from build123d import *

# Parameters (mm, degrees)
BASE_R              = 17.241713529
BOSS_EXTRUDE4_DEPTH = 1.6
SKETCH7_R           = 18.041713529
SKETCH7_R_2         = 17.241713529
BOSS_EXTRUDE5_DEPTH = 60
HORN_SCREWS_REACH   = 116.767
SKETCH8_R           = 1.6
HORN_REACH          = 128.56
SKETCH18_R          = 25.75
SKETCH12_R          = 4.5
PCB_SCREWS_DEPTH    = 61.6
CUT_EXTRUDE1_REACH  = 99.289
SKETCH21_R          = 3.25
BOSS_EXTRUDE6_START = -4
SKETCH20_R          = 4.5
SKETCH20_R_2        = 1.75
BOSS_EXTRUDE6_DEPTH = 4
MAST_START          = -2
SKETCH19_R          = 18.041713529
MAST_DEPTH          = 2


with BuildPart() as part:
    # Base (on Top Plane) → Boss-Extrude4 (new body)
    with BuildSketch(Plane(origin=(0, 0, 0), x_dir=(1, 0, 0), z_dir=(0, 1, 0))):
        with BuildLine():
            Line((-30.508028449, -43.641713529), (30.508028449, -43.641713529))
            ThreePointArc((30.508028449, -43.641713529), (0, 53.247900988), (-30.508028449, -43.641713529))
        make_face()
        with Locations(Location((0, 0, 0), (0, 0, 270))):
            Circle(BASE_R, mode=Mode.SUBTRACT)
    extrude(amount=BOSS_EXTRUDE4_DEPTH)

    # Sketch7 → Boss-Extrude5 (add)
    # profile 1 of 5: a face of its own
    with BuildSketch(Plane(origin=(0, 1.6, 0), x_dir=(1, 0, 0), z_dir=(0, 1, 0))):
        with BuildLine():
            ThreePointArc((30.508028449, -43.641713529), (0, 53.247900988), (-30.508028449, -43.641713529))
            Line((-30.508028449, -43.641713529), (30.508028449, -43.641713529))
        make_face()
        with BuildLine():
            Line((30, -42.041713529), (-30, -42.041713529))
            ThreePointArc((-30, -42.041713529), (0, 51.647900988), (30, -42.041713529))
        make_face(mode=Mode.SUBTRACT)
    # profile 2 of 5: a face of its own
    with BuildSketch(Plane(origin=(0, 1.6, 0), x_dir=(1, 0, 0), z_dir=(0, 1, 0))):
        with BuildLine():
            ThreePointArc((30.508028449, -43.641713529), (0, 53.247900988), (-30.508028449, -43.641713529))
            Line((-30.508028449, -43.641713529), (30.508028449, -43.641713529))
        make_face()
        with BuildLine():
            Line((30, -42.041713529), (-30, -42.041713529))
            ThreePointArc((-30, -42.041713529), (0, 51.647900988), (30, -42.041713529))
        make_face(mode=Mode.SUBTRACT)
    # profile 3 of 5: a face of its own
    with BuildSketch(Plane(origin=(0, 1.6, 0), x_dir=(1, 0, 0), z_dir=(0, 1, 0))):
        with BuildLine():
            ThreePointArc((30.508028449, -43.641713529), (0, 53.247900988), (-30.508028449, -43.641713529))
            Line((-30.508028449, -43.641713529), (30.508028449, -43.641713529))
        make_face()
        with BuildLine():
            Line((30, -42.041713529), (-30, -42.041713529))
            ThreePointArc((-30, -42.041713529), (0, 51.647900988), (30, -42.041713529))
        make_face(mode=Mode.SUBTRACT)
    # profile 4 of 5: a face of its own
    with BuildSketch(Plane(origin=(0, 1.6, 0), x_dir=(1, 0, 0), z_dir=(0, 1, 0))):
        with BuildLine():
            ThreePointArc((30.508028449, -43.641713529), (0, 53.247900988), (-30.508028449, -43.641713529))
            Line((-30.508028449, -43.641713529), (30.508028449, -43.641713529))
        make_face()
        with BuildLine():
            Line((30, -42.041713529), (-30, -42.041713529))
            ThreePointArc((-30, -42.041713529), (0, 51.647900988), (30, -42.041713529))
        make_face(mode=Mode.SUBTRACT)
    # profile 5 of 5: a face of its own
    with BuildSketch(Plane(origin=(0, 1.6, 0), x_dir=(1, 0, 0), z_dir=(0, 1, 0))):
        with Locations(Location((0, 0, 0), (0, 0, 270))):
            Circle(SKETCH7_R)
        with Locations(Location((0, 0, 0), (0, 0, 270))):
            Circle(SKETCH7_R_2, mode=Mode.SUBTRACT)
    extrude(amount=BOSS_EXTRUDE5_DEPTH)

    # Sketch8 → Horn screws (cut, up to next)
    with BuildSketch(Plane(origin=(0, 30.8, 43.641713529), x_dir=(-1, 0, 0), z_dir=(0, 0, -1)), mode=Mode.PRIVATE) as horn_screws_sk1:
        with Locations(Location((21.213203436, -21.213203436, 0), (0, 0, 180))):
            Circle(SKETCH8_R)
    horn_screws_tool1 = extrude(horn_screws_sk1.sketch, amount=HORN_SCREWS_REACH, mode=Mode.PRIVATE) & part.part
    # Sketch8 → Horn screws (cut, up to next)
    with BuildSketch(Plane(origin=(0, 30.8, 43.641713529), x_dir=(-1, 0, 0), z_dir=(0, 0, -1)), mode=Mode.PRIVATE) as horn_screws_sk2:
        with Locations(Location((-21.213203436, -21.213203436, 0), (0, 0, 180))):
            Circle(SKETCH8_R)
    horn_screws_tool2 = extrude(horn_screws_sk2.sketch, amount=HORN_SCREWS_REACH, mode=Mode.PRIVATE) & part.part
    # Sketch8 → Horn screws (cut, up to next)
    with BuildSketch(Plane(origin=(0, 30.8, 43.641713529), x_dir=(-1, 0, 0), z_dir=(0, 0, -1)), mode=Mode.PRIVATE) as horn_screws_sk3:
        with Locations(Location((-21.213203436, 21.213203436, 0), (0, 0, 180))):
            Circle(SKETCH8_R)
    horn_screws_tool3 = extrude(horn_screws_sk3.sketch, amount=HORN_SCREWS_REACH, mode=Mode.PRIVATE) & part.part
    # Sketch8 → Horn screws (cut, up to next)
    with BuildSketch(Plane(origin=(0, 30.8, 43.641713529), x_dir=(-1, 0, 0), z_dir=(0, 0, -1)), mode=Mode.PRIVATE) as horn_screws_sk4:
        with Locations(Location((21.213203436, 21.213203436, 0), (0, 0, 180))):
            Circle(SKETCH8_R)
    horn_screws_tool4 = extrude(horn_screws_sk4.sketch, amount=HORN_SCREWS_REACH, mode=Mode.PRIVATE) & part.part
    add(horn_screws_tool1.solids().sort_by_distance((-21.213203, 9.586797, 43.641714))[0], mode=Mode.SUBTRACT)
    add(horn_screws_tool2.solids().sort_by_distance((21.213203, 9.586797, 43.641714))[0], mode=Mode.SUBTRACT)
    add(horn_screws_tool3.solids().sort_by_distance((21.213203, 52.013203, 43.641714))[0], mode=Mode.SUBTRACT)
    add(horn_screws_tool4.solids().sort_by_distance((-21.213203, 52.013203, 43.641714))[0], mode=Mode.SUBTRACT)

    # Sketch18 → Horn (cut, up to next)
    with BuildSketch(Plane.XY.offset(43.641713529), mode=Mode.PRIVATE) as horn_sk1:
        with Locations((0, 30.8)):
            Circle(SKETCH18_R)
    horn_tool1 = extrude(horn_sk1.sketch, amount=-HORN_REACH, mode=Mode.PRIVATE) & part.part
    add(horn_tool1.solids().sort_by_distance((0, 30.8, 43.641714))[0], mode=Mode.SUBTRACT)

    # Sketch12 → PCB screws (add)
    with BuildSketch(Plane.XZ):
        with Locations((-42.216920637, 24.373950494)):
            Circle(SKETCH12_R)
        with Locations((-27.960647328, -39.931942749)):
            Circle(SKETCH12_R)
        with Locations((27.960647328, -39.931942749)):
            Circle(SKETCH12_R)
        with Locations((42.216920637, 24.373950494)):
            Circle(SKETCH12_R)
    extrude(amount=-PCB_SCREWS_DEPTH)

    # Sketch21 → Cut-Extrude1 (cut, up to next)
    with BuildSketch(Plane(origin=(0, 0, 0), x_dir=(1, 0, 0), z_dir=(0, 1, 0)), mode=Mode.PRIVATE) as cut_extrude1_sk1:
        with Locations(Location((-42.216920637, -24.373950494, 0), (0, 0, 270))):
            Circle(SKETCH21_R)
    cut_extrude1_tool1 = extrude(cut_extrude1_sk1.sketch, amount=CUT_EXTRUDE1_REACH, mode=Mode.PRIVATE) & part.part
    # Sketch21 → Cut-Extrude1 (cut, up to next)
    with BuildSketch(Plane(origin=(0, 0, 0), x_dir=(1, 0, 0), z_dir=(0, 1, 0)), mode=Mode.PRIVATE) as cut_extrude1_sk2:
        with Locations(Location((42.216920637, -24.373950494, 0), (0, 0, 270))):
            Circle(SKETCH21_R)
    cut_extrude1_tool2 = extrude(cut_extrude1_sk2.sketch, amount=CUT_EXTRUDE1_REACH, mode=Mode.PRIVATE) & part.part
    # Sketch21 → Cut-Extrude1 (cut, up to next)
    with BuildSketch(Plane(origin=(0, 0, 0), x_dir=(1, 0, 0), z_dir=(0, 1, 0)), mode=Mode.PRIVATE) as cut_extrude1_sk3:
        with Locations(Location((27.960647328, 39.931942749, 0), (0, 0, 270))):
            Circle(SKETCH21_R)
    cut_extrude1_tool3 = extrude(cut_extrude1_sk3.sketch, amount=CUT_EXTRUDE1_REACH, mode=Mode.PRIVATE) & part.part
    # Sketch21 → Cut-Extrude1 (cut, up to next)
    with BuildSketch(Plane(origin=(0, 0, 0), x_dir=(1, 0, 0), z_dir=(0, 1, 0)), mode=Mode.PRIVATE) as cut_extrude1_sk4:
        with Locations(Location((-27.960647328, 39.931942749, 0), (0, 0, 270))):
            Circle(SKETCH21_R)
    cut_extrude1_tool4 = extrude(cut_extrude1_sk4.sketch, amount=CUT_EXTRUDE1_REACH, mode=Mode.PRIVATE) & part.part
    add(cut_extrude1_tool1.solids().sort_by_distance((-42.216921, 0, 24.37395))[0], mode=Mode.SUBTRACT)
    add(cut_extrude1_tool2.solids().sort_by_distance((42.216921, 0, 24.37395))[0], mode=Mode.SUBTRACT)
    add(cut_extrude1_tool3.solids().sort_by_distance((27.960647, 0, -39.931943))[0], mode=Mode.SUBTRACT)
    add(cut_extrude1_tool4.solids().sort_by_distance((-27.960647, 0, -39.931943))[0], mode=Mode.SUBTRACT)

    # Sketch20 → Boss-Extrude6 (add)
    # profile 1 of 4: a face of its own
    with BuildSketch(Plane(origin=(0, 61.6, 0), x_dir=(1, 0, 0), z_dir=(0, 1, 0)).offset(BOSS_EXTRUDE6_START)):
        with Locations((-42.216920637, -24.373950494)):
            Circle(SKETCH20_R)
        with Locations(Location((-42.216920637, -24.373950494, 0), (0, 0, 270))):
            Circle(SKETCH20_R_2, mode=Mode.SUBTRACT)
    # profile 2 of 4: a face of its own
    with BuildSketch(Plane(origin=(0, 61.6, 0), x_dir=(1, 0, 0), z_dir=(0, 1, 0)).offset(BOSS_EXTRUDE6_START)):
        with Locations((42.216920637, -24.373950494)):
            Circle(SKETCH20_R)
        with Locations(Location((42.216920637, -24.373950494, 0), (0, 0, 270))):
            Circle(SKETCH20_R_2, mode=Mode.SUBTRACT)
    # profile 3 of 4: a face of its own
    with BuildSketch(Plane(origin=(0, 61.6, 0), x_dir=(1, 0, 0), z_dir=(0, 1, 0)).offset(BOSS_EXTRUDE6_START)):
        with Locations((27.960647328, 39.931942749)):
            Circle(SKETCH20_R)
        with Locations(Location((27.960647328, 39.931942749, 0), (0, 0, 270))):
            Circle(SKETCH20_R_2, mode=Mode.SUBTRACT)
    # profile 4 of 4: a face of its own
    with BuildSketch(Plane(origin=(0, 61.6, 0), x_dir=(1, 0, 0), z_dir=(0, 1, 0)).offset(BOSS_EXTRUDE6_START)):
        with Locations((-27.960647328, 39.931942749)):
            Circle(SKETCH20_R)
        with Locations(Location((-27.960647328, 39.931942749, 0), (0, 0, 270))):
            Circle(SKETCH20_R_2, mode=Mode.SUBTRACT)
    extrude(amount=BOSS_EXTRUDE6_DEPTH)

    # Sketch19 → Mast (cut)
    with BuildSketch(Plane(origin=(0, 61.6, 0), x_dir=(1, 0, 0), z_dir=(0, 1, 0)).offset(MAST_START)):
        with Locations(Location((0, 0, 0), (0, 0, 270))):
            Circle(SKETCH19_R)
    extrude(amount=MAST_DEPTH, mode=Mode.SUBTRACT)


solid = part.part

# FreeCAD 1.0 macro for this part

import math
import FreeCAD as App
import Part
import Sketcher
Q = App.Units.Quantity

doc = App.newDocument("Part")
body = doc.addObject("PartDesign::Body", "Body")

sketch1 = body.newObject("Sketcher::SketchObject", "Sketch")
sketch1.AttachmentSupport = (doc.getObject("XZ_Plane"), [""])
sketch1.MapMode = "FlatFace"
sketch1.addGeometry([
    Part.LineSegment(App.Vector(-31, 44, 0), App.Vector(31, 44, 0)),
    Part.ArcOfCircle(Part.Circle(App.Vector(0, 0, 0), App.Vector(0, 0, 1), 53), math.radians(125), math.radians(415)),
    Part.Circle(App.Vector(0, 0, 0), App.Vector(0, 0, 1), 17),
], False)
sketch1.addConstraint([
    Sketcher.Constraint("Coincident", 0, 1, 1, 1),
    Sketcher.Constraint("Coincident", 1, 2, 0, 2),
    Sketcher.Constraint("Horizontal", 0),
    Sketcher.Constraint("Coincident", 1, 3, -1, 1),
    Sketcher.Constraint("Coincident", 2, 3, -1, 1),
    Sketcher.Constraint("Radius", 1, Q("53.247901 mm")),
    Sketcher.Constraint("Diameter", 2, Q("34.483427 mm")),
    Sketcher.Constraint("DistanceX", 0, 1, 0, 2, Q("61.016057 mm")),
])
pad1 = body.newObject("PartDesign::Pad", "Pad")
pad1.Profile = sketch1
pad1.Length = 1.6
pad1.Reversed = True

sketch2 = body.newObject("Sketcher::SketchObject", "Sketch001")
sketch2.AttachmentSupport = (doc.getObject("XZ_Plane"), [""])
sketch2.MapMode = "FlatFace"
sketch2.AttachmentOffset = App.Placement(App.Vector(0, 0, -1.6), App.Rotation())
sketch2.addGeometry([
    Part.ArcOfCircle(Part.Circle(App.Vector(0, 0, 0), App.Vector(0, 0, 1), 53), math.radians(125), math.radians(415)),
    Part.LineSegment(App.Vector(-31, 44, 0), App.Vector(31, 44, 0)),
    Part.ArcOfCircle(Part.Circle(App.Vector(0, 0, 0), App.Vector(0, 0, 1), 52), math.radians(126), math.radians(414)),
    Part.LineSegment(App.Vector(30, 42, 0), App.Vector(-30, 42, 0)),
    Part.Circle(App.Vector(0, 0, 0), App.Vector(0, 0, 1), 18),
    Part.Circle(App.Vector(0, 0, 0), App.Vector(0, 0, 1), 17),
], False)
sketch2.addConstraint([
    Sketcher.Constraint("Coincident", 0, 1, 1, 1),
    Sketcher.Constraint("Coincident", 1, 2, 0, 2),
    Sketcher.Constraint("Coincident", 2, 1, 3, 2),
    Sketcher.Constraint("Coincident", 3, 1, 2, 2),
    Sketcher.Constraint("Horizontal", 1),
    Sketcher.Constraint("Horizontal", 3),
    Sketcher.Constraint("Coincident", 0, 3, -1, 1),
    Sketcher.Constraint("Coincident", 2, 3, -1, 1),
    Sketcher.Constraint("Coincident", 4, 3, -1, 1),
    Sketcher.Constraint("Coincident", 5, 3, -1, 1),
    Sketcher.Constraint("DistanceX", 3, 2, 3, 1, Q("60 mm")),
    Sketcher.Constraint("Radius", 0, Q("53.247901 mm")),
    Sketcher.Constraint("Radius", 2, Q("51.647901 mm")),
    Sketcher.Constraint("DistanceY", 2, 1, 0, 1, Q("1.6 mm")),
    Sketcher.Constraint("Diameter", 4, Q("36.083427 mm")),
    Sketcher.Constraint("Diameter", 5, Q("34.483427 mm")),
])
pad2 = body.newObject("PartDesign::Pad", "Pad001")
pad2.Profile = sketch2
pad2.Length = 60
pad2.Reversed = True

sketch3 = body.newObject("Sketcher::SketchObject", "Sketch002")
sketch3.AttachmentSupport = (doc.getObject("XY_Plane"), [""])
sketch3.MapMode = "FlatFace"
sketch3.AttachmentOffset = App.Placement(App.Vector(0, 0, 43.641714), App.Rotation())
sketch3.addGeometry(Part.Circle(App.Vector(-21.2, 9.6, 0), App.Vector(0, 0, 1), 1.6), False)
sketch3.addConstraint([
    Sketcher.Constraint("Diameter", 0, Q("3.2 mm")),
    Sketcher.Constraint("DistanceX", 0, 3, -1, 1, Q("21.213203 mm")),
    Sketcher.Constraint("DistanceY", -1, 1, 0, 3, Q("9.586797 mm")),
])
pocket1 = body.newObject("PartDesign::Pocket", "Pocket")
pocket1.Profile = sketch3
pocket1.Type = "UpToFirst"

sketch4 = body.newObject("Sketcher::SketchObject", "Sketch003")
sketch4.AttachmentSupport = (doc.getObject("XY_Plane"), [""])
sketch4.MapMode = "FlatFace"
sketch4.AttachmentOffset = App.Placement(App.Vector(0, 0, 43.641714), App.Rotation())
sketch4.addGeometry(Part.Circle(App.Vector(21.2, 9.6, 0), App.Vector(0, 0, 1), 1.6), False)
sketch4.addConstraint([
    Sketcher.Constraint("Diameter", 0, Q("3.2 mm")),
    Sketcher.Constraint("DistanceX", -1, 1, 0, 3, Q("21.213203 mm")),
    Sketcher.Constraint("DistanceY", -1, 1, 0, 3, Q("9.586797 mm")),
])
pocket2 = body.newObject("PartDesign::Pocket", "Pocket001")
pocket2.Profile = sketch4
pocket2.Type = "UpToFirst"

sketch5 = body.newObject("Sketcher::SketchObject", "Sketch004")
sketch5.AttachmentSupport = (doc.getObject("XY_Plane"), [""])
sketch5.MapMode = "FlatFace"
sketch5.AttachmentOffset = App.Placement(App.Vector(0, 0, 43.641714), App.Rotation())
sketch5.addGeometry(Part.Circle(App.Vector(21.2, 52, 0), App.Vector(0, 0, 1), 1.6), False)
sketch5.addConstraint([
    Sketcher.Constraint("Diameter", 0, Q("3.2 mm")),
    Sketcher.Constraint("DistanceX", -1, 1, 0, 3, Q("21.213203 mm")),
    Sketcher.Constraint("DistanceY", -1, 1, 0, 3, Q("52.013203 mm")),
])
pocket3 = body.newObject("PartDesign::Pocket", "Pocket002")
pocket3.Profile = sketch5
pocket3.Type = "UpToFirst"

sketch6 = body.newObject("Sketcher::SketchObject", "Sketch005")
sketch6.AttachmentSupport = (doc.getObject("XY_Plane"), [""])
sketch6.MapMode = "FlatFace"
sketch6.AttachmentOffset = App.Placement(App.Vector(0, 0, 43.641714), App.Rotation())
sketch6.addGeometry(Part.Circle(App.Vector(-21.2, 52, 0), App.Vector(0, 0, 1), 1.6), False)
sketch6.addConstraint([
    Sketcher.Constraint("Diameter", 0, Q("3.2 mm")),
    Sketcher.Constraint("DistanceX", 0, 3, -1, 1, Q("21.213203 mm")),
    Sketcher.Constraint("DistanceY", -1, 1, 0, 3, Q("52.013203 mm")),
])
pocket4 = body.newObject("PartDesign::Pocket", "Pocket003")
pocket4.Profile = sketch6
pocket4.Type = "UpToFirst"

sketch7 = body.newObject("Sketcher::SketchObject", "Sketch006")
sketch7.AttachmentSupport = (doc.getObject("XY_Plane"), [""])
sketch7.MapMode = "FlatFace"
sketch7.AttachmentOffset = App.Placement(App.Vector(0, 0, 43.641714), App.Rotation())
sketch7.addGeometry(Part.Circle(App.Vector(0, 31, 0), App.Vector(0, 0, 1), 26), False)
sketch7.addConstraint([
    Sketcher.Constraint("PointOnObject", 0, 3, -2),
    Sketcher.Constraint("Diameter", 0, Q("51.5 mm")),
    Sketcher.Constraint("DistanceY", -1, 1, 0, 3, Q("30.8 mm")),
])
pocket5 = body.newObject("PartDesign::Pocket", "Pocket004")
pocket5.Profile = sketch7
pocket5.Type = "UpToFirst"

sketch8 = body.newObject("Sketcher::SketchObject", "Sketch007")
sketch8.AttachmentSupport = (doc.getObject("XZ_Plane"), [""])
sketch8.MapMode = "FlatFace"
sketch8.addGeometry([
    Part.Circle(App.Vector(-42.2, 24.4, 0), App.Vector(0, 0, 1), 4.5),
    Part.Circle(App.Vector(-28, -39.9, 0), App.Vector(0, 0, 1), 4.5),
    Part.Circle(App.Vector(28, -39.9, 0), App.Vector(0, 0, 1), 4.5),
    Part.Circle(App.Vector(42.2, 24.4, 0), App.Vector(0, 0, 1), 4.5),
], False)
sketch8.addConstraint([
    Sketcher.Constraint("Equal", 0, 1),
    Sketcher.Constraint("Equal", 1, 2),
    Sketcher.Constraint("Equal", 2, 3),
    Sketcher.Constraint("Symmetric", 1, 3, 2, 3, -2),
    Sketcher.Constraint("Symmetric", 0, 3, 3, 3, -2),
    Sketcher.Constraint("Diameter", 0, Q("9 mm")),
    Sketcher.Constraint("DistanceX", 0, 3, -1, 1, Q("42.216921 mm")),
    Sketcher.Constraint("DistanceY", -1, 1, 0, 3, Q("24.37395 mm")),
    Sketcher.Constraint("DistanceX", 1, 3, -1, 1, Q("27.960647 mm")),
    Sketcher.Constraint("DistanceY", 1, 3, -1, 1, Q("39.931943 mm")),
])
pad3 = body.newObject("PartDesign::Pad", "Pad002")
pad3.Profile = sketch8
pad3.Length = 61.6
pad3.Reversed = True

sketch9 = body.newObject("Sketcher::SketchObject", "Sketch008")
sketch9.AttachmentSupport = (doc.getObject("XZ_Plane"), [""])
sketch9.MapMode = "FlatFace"
sketch9.addGeometry(Part.Circle(App.Vector(-42.2, 24.4, 0), App.Vector(0, 0, 1), 3.2), False)
sketch9.addConstraint([
    Sketcher.Constraint("Diameter", 0, Q("6.5 mm")),
    Sketcher.Constraint("DistanceX", 0, 3, -1, 1, Q("42.216921 mm")),
    Sketcher.Constraint("DistanceY", -1, 1, 0, 3, Q("24.37395 mm")),
])
pocket6 = body.newObject("PartDesign::Pocket", "Pocket005")
pocket6.Profile = sketch9
pocket6.Type = "UpToFirst"

sketch10 = body.newObject("Sketcher::SketchObject", "Sketch009")
sketch10.AttachmentSupport = (doc.getObject("XZ_Plane"), [""])
sketch10.MapMode = "FlatFace"
sketch10.addGeometry(Part.Circle(App.Vector(42.2, 24.4, 0), App.Vector(0, 0, 1), 3.2), False)
sketch10.addConstraint([
    Sketcher.Constraint("Diameter", 0, Q("6.5 mm")),
    Sketcher.Constraint("DistanceX", -1, 1, 0, 3, Q("42.216921 mm")),
    Sketcher.Constraint("DistanceY", -1, 1, 0, 3, Q("24.37395 mm")),
])
pocket7 = body.newObject("PartDesign::Pocket", "Pocket006")
pocket7.Profile = sketch10
pocket7.Type = "UpToFirst"

sketch11 = body.newObject("Sketcher::SketchObject", "Sketch010")
sketch11.AttachmentSupport = (doc.getObject("XZ_Plane"), [""])
sketch11.MapMode = "FlatFace"
sketch11.addGeometry(Part.Circle(App.Vector(28, -39.9, 0), App.Vector(0, 0, 1), 3.2), False)
sketch11.addConstraint([
    Sketcher.Constraint("Diameter", 0, Q("6.5 mm")),
    Sketcher.Constraint("DistanceX", -1, 1, 0, 3, Q("27.960647 mm")),
    Sketcher.Constraint("DistanceY", 0, 3, -1, 1, Q("39.931943 mm")),
])
pocket8 = body.newObject("PartDesign::Pocket", "Pocket007")
pocket8.Profile = sketch11
pocket8.Type = "UpToFirst"

sketch12 = body.newObject("Sketcher::SketchObject", "Sketch011")
sketch12.AttachmentSupport = (doc.getObject("XZ_Plane"), [""])
sketch12.MapMode = "FlatFace"
sketch12.addGeometry(Part.Circle(App.Vector(-28, -39.9, 0), App.Vector(0, 0, 1), 3.2), False)
sketch12.addConstraint([
    Sketcher.Constraint("Diameter", 0, Q("6.5 mm")),
    Sketcher.Constraint("DistanceX", 0, 3, -1, 1, Q("27.960647 mm")),
    Sketcher.Constraint("DistanceY", 0, 3, -1, 1, Q("39.931943 mm")),
])
pocket9 = body.newObject("PartDesign::Pocket", "Pocket008")
pocket9.Profile = sketch12
pocket9.Type = "UpToFirst"

sketch13 = body.newObject("Sketcher::SketchObject", "Sketch012")
sketch13.AttachmentSupport = (doc.getObject("XZ_Plane"), [""])
sketch13.MapMode = "FlatFace"
sketch13.AttachmentOffset = App.Placement(App.Vector(0, 0, -57.6), App.Rotation())
sketch13.addGeometry([
    Part.Circle(App.Vector(-42.2, 24.4, 0), App.Vector(0, 0, 1), 4.5),
    Part.Circle(App.Vector(-42.2, 24.4, 0), App.Vector(0, 0, 1), 1.8),
    Part.Circle(App.Vector(42.2, 24.4, 0), App.Vector(0, 0, 1), 4.5),
    Part.Circle(App.Vector(42.2, 24.4, 0), App.Vector(0, 0, 1), 1.8),
    Part.Circle(App.Vector(28, -39.9, 0), App.Vector(0, 0, 1), 4.5),
    Part.Circle(App.Vector(28, -39.9, 0), App.Vector(0, 0, 1), 1.8),
    Part.Circle(App.Vector(-28, -39.9, 0), App.Vector(0, 0, 1), 4.5),
    Part.Circle(App.Vector(-28, -39.9, 0), App.Vector(0, 0, 1), 1.8),
], False)
sketch13.addConstraint([
    Sketcher.Constraint("Coincident", 1, 3, 0, 3),
    Sketcher.Constraint("Coincident", 3, 3, 2, 3),
    Sketcher.Constraint("Coincident", 5, 3, 4, 3),
    Sketcher.Constraint("Coincident", 7, 3, 6, 3),
    Sketcher.Constraint("Equal", 0, 2),
    Sketcher.Constraint("Equal", 1, 3),
    Sketcher.Constraint("Equal", 2, 4),
    Sketcher.Constraint("Equal", 3, 5),
    Sketcher.Constraint("Equal", 4, 6),
    Sketcher.Constraint("Equal", 5, 7),
    Sketcher.Constraint("Symmetric", 0, 3, 2, 3, -2),
    Sketcher.Constraint("Symmetric", 4, 3, 6, 3, -2),
    Sketcher.Constraint("Diameter", 0, Q("9 mm")),
    Sketcher.Constraint("Diameter", 1, Q("3.5 mm")),
    Sketcher.Constraint("DistanceX", 0, 3, -1, 1, Q("42.216921 mm")),
    Sketcher.Constraint("DistanceY", -1, 1, 0, 3, Q("24.37395 mm")),
    Sketcher.Constraint("DistanceX", -1, 1, 4, 3, Q("27.960647 mm")),
    Sketcher.Constraint("DistanceY", 4, 3, -1, 1, Q("39.931943 mm")),
])
pad4 = body.newObject("PartDesign::Pad", "Pad003")
pad4.Profile = sketch13
pad4.Length = 4
pad4.Reversed = True

sketch14 = body.newObject("Sketcher::SketchObject", "Sketch013")
sketch14.AttachmentSupport = (doc.getObject("XZ_Plane"), [""])
sketch14.MapMode = "FlatFace"
sketch14.AttachmentOffset = App.Placement(App.Vector(0, 0, -59.6), App.Rotation())
sketch14.addGeometry(Part.Circle(App.Vector(0, 0, 0), App.Vector(0, 0, 1), 18), False)
sketch14.addConstraint([
    Sketcher.Constraint("Coincident", 0, 3, -1, 1),
    Sketcher.Constraint("Diameter", 0, Q("36.083427 mm")),
])
pocket10 = body.newObject("PartDesign::Pocket", "Pocket009")
pocket10.Profile = sketch14
pocket10.Length = 2

doc.recompute()
